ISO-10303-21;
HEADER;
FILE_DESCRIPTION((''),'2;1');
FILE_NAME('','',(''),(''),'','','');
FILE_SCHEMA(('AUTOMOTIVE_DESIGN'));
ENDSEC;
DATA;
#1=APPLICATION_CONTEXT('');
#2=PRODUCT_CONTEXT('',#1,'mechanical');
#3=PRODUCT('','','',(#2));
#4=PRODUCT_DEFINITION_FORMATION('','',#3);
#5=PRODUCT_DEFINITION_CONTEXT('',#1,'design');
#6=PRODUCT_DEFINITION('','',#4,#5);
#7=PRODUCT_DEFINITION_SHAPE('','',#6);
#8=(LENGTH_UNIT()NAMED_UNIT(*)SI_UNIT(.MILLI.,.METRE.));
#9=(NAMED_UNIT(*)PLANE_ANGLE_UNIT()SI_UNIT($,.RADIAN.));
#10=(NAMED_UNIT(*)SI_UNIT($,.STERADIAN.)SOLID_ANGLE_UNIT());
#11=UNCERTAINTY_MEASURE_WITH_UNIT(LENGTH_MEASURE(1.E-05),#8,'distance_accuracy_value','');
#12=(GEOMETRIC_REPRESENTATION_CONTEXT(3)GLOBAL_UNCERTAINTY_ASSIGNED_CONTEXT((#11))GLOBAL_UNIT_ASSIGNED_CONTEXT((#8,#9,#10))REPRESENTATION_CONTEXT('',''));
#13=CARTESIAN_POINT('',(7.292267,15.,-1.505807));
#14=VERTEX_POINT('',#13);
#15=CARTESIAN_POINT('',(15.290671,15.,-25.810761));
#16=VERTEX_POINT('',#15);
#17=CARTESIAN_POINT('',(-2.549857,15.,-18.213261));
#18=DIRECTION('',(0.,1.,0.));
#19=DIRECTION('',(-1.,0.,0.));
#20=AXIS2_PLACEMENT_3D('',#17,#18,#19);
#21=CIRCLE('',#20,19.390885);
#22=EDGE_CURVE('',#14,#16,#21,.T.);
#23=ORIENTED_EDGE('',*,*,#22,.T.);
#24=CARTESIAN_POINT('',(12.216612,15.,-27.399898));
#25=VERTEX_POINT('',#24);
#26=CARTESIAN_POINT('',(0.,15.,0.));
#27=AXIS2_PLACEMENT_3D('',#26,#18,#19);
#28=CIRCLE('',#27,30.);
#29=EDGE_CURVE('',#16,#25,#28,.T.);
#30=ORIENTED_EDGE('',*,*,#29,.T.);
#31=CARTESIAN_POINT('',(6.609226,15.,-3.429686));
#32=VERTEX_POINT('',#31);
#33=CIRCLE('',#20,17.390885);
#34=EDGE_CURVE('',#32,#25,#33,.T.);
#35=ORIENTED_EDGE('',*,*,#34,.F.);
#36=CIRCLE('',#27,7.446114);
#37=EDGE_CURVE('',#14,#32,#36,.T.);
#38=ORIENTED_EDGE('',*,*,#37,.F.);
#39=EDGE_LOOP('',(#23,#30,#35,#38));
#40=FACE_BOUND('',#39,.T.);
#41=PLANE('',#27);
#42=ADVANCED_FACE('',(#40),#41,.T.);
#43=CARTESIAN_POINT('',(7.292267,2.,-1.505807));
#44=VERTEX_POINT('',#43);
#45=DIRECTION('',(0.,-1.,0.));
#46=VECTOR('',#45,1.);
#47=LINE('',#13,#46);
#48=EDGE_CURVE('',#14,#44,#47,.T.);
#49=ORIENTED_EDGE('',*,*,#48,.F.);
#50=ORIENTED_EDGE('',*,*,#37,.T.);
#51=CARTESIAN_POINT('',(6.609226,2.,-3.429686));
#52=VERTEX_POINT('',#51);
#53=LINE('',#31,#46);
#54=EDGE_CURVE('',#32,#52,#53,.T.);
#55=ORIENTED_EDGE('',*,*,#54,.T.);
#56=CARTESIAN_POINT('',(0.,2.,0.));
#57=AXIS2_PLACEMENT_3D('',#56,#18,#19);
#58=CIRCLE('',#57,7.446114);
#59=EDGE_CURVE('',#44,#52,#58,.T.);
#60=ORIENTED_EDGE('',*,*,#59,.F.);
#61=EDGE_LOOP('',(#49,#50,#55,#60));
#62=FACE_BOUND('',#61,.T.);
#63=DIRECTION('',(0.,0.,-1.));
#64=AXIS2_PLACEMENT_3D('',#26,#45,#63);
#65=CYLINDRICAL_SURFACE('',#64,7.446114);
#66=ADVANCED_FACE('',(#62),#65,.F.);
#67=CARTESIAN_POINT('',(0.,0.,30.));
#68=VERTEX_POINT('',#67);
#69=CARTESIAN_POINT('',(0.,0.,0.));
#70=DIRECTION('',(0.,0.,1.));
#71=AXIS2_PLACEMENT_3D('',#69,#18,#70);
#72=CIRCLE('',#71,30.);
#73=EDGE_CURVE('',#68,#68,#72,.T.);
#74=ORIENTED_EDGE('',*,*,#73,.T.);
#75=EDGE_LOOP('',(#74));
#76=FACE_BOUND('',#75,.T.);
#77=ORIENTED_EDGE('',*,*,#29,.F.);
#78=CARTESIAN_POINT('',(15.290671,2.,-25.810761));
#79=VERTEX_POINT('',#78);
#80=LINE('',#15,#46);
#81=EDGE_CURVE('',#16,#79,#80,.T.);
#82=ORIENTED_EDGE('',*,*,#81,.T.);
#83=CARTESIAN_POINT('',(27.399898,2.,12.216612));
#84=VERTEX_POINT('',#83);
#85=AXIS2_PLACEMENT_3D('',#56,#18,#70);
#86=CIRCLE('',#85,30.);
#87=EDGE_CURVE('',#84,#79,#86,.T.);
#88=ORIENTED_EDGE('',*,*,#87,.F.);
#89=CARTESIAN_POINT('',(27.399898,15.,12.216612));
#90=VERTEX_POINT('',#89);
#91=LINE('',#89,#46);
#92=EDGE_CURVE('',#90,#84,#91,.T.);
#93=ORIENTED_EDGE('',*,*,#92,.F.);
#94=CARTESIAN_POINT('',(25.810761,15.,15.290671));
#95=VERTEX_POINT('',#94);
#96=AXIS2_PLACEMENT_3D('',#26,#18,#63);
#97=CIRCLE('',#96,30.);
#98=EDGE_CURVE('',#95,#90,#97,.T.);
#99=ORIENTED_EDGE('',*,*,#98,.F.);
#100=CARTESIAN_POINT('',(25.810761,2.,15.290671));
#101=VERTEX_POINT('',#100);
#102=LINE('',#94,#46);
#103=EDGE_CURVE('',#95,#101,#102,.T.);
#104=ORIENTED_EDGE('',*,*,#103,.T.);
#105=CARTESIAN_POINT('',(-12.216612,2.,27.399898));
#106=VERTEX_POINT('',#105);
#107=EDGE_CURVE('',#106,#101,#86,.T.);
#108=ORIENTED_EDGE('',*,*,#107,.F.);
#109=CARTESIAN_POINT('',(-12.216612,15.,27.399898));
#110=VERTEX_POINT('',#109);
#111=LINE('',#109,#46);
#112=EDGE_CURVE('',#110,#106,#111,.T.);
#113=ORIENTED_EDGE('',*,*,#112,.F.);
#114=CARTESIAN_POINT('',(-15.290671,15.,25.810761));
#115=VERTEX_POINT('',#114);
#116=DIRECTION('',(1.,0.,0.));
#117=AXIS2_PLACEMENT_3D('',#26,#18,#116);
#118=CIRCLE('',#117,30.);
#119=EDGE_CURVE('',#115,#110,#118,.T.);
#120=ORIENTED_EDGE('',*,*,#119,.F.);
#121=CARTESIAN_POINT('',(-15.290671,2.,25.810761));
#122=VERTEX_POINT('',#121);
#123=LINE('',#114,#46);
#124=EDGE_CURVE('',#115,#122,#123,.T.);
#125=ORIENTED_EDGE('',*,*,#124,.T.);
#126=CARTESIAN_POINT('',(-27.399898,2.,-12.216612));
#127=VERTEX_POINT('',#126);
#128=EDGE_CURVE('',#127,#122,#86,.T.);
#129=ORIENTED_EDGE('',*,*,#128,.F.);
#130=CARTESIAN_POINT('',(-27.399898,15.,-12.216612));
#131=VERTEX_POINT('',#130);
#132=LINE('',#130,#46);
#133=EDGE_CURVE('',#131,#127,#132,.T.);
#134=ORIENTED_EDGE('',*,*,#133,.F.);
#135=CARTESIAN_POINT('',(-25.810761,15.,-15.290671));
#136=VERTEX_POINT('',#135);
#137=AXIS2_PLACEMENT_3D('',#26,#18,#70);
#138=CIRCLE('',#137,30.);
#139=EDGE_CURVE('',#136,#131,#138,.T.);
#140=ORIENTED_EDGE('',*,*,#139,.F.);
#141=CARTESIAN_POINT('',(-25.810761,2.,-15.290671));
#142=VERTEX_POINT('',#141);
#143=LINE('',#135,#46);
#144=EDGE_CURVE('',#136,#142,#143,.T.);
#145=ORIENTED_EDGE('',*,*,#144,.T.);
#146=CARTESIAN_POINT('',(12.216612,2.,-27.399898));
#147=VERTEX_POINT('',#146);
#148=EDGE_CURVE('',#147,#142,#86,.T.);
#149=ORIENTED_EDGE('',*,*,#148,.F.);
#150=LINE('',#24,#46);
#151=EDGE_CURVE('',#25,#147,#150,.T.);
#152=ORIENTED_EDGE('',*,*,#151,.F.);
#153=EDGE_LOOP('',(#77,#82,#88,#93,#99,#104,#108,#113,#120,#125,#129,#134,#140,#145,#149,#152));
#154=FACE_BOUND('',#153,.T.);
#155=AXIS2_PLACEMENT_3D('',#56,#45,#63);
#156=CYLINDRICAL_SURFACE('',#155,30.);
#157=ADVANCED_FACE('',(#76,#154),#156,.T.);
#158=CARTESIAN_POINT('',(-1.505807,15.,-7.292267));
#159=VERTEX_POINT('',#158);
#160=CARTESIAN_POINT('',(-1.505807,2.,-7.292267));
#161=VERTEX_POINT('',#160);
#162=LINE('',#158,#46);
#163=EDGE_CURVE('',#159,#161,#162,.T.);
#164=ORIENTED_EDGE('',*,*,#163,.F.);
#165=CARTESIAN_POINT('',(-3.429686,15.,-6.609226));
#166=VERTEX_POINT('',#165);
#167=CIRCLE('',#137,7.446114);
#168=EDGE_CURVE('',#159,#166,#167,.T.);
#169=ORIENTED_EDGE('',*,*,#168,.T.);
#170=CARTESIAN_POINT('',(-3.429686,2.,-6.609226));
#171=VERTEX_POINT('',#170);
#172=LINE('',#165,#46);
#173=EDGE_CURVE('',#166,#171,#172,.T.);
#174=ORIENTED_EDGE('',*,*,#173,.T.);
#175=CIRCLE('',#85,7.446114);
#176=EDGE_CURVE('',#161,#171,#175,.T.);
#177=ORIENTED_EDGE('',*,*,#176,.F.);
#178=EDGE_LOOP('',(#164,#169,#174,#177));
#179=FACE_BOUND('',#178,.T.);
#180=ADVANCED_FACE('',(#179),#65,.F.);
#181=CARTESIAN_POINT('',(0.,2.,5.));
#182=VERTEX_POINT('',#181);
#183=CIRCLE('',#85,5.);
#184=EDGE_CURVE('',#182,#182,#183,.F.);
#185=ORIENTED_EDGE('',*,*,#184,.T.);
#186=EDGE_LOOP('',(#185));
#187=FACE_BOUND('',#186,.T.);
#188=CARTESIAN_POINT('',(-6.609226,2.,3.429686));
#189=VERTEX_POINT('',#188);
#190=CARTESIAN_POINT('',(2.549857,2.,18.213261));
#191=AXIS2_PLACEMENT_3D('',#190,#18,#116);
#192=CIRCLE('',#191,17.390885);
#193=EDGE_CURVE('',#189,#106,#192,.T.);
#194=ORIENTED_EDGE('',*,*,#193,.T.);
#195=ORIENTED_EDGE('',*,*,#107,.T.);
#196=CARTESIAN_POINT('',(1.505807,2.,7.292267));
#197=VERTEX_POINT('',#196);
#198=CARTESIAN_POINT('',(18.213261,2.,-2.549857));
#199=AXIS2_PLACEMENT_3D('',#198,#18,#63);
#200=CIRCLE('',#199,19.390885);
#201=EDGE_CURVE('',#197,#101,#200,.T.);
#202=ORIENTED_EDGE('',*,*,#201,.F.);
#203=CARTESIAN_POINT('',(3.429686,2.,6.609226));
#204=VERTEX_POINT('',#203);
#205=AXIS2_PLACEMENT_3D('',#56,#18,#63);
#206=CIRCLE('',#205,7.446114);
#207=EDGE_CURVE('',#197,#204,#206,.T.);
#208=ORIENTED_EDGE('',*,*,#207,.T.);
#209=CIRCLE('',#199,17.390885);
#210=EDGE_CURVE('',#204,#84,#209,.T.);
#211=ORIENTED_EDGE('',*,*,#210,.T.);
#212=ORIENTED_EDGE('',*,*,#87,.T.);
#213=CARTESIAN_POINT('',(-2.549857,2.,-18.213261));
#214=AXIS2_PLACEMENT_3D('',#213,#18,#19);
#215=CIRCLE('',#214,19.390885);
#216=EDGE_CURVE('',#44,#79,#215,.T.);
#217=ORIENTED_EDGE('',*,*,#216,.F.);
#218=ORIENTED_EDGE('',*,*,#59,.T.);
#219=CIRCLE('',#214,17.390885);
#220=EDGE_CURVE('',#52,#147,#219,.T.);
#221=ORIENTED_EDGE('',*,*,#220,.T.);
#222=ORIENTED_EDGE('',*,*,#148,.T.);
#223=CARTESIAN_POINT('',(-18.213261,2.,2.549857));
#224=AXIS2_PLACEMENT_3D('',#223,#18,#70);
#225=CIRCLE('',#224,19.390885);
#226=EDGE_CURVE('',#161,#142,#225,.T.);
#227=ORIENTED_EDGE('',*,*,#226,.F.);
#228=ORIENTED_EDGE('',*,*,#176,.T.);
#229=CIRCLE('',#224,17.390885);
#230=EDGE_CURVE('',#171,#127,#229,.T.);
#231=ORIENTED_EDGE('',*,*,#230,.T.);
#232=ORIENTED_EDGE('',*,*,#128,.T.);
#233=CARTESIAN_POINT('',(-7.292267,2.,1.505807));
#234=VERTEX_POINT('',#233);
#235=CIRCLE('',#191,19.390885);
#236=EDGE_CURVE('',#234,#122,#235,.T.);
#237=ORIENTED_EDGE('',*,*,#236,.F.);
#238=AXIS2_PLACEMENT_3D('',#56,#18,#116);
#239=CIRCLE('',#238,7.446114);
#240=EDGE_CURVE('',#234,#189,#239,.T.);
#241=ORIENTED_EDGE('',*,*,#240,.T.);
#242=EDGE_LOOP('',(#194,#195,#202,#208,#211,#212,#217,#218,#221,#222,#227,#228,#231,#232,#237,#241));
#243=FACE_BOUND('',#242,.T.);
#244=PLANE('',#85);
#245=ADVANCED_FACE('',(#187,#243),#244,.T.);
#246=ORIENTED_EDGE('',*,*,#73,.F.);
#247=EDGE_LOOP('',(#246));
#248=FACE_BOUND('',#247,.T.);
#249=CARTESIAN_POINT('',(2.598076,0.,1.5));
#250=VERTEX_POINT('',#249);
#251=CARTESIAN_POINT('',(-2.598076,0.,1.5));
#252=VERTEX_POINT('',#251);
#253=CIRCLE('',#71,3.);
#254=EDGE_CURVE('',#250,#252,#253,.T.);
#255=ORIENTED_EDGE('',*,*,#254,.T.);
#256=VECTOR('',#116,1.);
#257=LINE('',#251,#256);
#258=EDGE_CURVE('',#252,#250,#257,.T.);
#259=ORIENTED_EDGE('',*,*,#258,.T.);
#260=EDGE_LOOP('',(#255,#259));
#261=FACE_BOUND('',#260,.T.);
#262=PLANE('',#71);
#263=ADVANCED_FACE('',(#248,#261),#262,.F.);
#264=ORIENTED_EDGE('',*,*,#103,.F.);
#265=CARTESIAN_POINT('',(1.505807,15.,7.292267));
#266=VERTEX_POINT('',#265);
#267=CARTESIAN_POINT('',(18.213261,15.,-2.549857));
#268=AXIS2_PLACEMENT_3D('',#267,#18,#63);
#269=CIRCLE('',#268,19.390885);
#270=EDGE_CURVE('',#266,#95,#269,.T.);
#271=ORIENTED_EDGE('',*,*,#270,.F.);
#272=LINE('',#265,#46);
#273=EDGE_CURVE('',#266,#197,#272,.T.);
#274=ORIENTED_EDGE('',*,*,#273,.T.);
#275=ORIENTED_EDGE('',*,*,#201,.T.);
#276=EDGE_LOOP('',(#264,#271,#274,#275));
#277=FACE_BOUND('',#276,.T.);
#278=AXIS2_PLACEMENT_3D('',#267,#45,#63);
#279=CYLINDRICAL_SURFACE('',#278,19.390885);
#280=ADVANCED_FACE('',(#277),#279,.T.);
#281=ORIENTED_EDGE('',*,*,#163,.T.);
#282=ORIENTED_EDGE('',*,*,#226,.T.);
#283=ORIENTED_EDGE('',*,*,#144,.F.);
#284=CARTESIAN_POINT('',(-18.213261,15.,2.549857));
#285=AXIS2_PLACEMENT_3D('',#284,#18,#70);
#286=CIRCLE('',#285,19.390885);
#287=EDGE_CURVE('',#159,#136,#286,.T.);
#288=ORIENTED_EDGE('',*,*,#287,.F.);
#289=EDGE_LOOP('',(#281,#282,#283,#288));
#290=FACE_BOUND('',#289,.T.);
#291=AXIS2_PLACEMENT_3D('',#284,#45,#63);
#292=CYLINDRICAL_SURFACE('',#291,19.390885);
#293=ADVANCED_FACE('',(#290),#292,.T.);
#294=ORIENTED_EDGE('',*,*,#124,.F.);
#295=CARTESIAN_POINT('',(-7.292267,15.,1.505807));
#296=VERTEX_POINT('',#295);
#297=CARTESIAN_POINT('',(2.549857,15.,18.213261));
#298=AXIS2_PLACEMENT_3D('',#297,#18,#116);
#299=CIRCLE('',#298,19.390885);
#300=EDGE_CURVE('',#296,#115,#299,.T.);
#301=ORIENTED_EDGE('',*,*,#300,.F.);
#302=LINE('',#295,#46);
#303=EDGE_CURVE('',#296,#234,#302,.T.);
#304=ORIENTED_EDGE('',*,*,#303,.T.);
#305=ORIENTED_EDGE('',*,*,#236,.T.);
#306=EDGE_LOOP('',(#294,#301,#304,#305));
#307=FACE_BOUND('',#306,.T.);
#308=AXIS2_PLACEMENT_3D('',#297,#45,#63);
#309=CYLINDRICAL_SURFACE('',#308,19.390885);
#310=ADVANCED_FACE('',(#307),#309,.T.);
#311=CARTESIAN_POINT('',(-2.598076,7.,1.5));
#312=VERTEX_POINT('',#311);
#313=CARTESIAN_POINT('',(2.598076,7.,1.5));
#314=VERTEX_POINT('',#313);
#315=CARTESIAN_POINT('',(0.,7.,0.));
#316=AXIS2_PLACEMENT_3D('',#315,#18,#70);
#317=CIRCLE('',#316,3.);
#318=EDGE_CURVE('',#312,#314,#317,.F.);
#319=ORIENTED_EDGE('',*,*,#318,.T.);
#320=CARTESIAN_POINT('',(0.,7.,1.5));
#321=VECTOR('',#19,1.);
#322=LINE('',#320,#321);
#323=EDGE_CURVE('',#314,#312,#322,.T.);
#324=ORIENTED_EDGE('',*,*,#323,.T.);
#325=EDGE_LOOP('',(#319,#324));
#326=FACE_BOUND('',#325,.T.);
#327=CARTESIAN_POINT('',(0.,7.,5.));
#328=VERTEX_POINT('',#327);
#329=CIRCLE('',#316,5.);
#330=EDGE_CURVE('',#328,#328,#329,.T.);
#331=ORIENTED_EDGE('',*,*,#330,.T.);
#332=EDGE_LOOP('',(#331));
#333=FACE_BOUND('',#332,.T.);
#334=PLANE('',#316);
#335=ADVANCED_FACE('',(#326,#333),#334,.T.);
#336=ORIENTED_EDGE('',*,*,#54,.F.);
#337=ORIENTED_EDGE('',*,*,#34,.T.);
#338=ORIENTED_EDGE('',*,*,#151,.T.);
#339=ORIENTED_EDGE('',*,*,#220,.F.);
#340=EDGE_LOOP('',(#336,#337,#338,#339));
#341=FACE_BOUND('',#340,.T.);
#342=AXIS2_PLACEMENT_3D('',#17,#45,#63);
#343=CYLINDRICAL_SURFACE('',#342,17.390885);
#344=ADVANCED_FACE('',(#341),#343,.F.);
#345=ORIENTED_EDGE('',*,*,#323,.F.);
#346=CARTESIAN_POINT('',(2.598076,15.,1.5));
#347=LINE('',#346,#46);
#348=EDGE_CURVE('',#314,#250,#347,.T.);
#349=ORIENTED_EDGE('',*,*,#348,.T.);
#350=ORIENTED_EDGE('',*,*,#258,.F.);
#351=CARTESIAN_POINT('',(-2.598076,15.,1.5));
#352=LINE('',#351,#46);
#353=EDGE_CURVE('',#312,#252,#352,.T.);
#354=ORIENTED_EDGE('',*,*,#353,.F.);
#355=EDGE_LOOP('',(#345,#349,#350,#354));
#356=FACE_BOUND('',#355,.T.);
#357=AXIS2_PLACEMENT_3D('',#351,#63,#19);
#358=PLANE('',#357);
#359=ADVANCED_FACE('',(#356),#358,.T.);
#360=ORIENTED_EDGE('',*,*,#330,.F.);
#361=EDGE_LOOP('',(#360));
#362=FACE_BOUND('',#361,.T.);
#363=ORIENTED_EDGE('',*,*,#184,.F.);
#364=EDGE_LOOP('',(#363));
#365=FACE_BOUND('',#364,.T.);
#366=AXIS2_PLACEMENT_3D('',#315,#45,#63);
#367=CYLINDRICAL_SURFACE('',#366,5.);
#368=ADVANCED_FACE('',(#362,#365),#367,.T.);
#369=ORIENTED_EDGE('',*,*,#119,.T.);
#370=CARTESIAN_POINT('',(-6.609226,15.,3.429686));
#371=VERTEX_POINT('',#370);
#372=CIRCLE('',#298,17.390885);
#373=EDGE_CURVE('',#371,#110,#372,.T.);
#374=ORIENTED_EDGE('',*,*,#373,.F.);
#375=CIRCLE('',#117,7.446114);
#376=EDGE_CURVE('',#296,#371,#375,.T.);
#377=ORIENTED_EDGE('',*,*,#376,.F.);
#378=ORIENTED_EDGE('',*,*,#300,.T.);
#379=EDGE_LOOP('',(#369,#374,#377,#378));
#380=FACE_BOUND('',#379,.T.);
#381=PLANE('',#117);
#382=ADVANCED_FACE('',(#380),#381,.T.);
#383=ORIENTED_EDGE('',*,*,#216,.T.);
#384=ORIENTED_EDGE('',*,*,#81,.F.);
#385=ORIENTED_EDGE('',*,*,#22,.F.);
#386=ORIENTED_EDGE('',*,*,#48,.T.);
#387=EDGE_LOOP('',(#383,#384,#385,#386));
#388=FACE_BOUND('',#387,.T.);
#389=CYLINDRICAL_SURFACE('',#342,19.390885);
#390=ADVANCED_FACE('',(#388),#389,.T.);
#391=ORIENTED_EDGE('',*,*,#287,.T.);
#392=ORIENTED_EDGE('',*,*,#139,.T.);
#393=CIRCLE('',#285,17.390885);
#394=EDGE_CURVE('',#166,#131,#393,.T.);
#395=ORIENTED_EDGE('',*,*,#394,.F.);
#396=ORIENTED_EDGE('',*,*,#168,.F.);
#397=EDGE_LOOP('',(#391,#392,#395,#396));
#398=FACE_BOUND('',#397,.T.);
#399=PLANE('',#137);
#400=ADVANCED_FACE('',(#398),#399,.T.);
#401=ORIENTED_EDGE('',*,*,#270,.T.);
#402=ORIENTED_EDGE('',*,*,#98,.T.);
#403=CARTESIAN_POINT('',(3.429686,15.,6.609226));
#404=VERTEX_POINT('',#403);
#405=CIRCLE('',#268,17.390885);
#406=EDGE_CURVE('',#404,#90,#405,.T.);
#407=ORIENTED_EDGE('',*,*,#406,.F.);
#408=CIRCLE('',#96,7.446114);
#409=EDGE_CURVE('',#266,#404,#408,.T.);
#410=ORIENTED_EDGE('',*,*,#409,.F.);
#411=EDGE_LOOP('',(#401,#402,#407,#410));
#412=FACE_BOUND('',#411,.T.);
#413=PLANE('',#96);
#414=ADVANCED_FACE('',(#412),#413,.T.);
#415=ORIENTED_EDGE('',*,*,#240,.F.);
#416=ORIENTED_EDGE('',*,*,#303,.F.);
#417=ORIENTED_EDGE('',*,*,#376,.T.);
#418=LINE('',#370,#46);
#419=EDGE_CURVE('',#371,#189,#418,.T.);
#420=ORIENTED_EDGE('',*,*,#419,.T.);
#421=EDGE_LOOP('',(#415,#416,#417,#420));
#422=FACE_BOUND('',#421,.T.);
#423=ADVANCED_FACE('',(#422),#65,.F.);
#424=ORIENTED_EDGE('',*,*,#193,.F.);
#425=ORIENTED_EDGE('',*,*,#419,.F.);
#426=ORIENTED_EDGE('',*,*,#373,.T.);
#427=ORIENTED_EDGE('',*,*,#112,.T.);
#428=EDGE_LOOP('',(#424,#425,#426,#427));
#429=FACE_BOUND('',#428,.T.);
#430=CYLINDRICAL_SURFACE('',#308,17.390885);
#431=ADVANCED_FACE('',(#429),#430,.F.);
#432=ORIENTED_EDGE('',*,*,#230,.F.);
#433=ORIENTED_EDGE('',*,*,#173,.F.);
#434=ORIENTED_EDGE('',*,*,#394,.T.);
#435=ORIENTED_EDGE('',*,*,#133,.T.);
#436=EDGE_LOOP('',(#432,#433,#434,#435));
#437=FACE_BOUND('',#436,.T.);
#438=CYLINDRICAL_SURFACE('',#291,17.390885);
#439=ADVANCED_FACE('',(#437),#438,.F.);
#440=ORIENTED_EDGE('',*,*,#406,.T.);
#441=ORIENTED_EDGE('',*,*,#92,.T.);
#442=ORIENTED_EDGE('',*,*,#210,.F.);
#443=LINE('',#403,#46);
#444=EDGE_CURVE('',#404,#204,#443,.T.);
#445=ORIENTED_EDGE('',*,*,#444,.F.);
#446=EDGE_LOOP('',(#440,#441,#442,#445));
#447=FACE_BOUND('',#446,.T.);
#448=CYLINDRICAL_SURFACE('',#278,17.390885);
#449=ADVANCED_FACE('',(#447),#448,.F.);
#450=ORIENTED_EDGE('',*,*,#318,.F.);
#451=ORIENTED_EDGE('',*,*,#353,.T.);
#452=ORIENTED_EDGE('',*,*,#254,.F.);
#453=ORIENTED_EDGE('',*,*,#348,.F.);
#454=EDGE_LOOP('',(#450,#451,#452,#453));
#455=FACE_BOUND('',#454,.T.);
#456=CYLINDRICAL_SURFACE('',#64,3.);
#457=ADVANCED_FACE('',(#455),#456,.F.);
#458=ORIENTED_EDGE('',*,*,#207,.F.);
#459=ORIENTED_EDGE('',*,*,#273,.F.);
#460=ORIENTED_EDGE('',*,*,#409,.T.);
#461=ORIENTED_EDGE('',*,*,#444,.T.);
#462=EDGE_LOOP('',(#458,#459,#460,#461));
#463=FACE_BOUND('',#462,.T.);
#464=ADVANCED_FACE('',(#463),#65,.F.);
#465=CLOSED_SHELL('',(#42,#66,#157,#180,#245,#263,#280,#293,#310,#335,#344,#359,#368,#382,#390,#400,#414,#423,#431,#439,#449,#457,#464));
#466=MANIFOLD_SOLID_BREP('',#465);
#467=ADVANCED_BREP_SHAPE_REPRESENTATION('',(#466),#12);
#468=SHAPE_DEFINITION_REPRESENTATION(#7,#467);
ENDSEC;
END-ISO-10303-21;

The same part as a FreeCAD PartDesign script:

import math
import FreeCAD as App
import Part
import Sketcher

V = App.Vector
Q = App.Units.Quantity

doc = App.newDocument("Part")
body = doc.addObject("PartDesign::Body", "Body")

sketch1 = body.newObject("Sketcher::SketchObject", "Sketch")
sketch1.AttachmentSupport = (doc.getObject("XZ_Plane"), [""])
sketch1.MapMode = "FlatFace"
sketch1.addGeometry(Part.Circle(V(0, 0, 0), V(0, 0, 1), 30), False)
sketch1.addConstraint([
    Sketcher.Constraint("Coincident", 0, 3, -1, 1),
    Sketcher.Constraint("Diameter", 0, Q("60 mm")),
])
pad1 = body.newObject("PartDesign::Pad", "Pad")
pad1.Profile = sketch1
pad1.Length = 2
pad1.Reversed = True

sketch2 = body.newObject("Sketcher::SketchObject", "Sketch001")
sketch2.AttachmentSupport = (doc.getObject("XZ_Plane"), [""])
sketch2.MapMode = "FlatFace"
sketch2.addGeometry(Part.Circle(V(0, 0, 0), V(0, 0, 1), 5), False)
sketch2.addConstraint([
    Sketcher.Constraint("Coincident", 0, 3, -1, 1),
    Sketcher.Constraint("Diameter", 0, Q("10 mm")),
])
pad2 = body.newObject("PartDesign::Pad", "Pad001")
pad2.Profile = sketch2
pad2.Length = 7
pad2.Reversed = True

sketch3 = body.newObject("Sketcher::SketchObject", "Sketch002")
sketch3.AttachmentSupport = (doc.getObject("XZ_Plane"), [""])
sketch3.MapMode = "FlatFace"
sketch3.AttachmentOffset = App.Placement(V(0, 0, -2), App.Rotation())
sketch3.addGeometry([
    Part.ArcOfCircle(Part.Circle(V(-18.213261, 2.549857, 0), V(0, 0, 1), 19.390885), math.radians(-113.067033), math.radians(-30.501733)),
    Part.ArcOfCircle(Part.Circle(V(0, 0, 0), V(0, 0, 1), 30), math.radians(-155.969657), math.radians(-149.356882)),
    Part.ArcOfCircle(Part.Circle(V(-18.213261, 2.549857, 0), V(0, 0, 1), 17.390885), math.radians(-121.886909), math.radians(-31.780056)),
    Part.ArcOfCircle(Part.Circle(V(0, 0, 0), V(0, 0, 1), 7.446114), math.radians(-117.425884), math.radians(-101.667232)),
], False)
sketch3.addConstraint([
    Sketcher.Constraint("Coincident", 0, 1, 1, 2),
    Sketcher.Constraint("Coincident", 1, 1, 2, 1),
    Sketcher.Constraint("Coincident", 2, 2, 3, 1),
    Sketcher.Constraint("Coincident", 3, 2, 0, 2),
    Sketcher.Constraint("Coincident", 1, 3, -1, 1),
    Sketcher.Constraint("Coincident", 3, 3, -1, 1),
    Sketcher.Constraint("Coincident", 2, 3, 0, 3),
    Sketcher.Constraint("Radius", 1, Q("30 mm")),
    Sketcher.Constraint("Radius", 0, Q("19.390885 mm")),
    Sketcher.Constraint("Radius", 2, Q("17.390885 mm")),
    Sketcher.Constraint("Radius", 3, Q("7.446114 mm")),
    Sketcher.Constraint("DistanceX", 0, 1, 0, 3, Q("7.5975 mm")),
    Sketcher.Constraint("DistanceX", 0, 3, -1, 1, Q("18.213261 mm")),
])
pad3 = body.newObject("PartDesign::Pad", "Pad002")
pad3.Profile = sketch3
pad3.Length = 13
pad3.Reversed = True

sketch4 = body.newObject("Sketcher::SketchObject", "Sketch003")
sketch4.AttachmentSupport = (doc.getObject("XZ_Plane"), [""])
sketch4.MapMode = "FlatFace"
sketch4.addGeometry([
    Part.LineSegment(V(-2.598076, 1.5, 0), V(2.598076, 1.5, 0)),
    Part.ArcOfCircle(Part.Circle(V(0, 0, 0), V(0, 0, 1), 3), math.radians(150), math.radians(390)),
], False)
sketch4.addConstraint([
    Sketcher.Constraint("Coincident", 0, 1, 1, 1),
    Sketcher.Constraint("Coincident", 1, 2, 0, 2),
    Sketcher.Constraint("Horizontal", 0),
    Sketcher.Constraint("Coincident", 1, 3, -1, 1),
    Sketcher.Constraint("Radius", 1, Q("3 mm")),
    Sketcher.Constraint("DistanceY", -1, 1, 0, 1, Q("1.5 mm")),
])
pocket1 = body.newObject("PartDesign::Pocket", "Pocket")
pocket1.Profile = sketch4
pocket1.Type = "ThroughAll"
doc.recompute()

polarpattern = body.newObject("PartDesign::PolarPattern", "PolarPattern")
polarpattern.Originals = [pad3]
polarpattern.Axis = (doc.getObject("Y_Axis"), [""])
polarpattern.Angle = 360
polarpattern.Occurrences = 4
body.Tip = polarpattern

doc.recompute()
